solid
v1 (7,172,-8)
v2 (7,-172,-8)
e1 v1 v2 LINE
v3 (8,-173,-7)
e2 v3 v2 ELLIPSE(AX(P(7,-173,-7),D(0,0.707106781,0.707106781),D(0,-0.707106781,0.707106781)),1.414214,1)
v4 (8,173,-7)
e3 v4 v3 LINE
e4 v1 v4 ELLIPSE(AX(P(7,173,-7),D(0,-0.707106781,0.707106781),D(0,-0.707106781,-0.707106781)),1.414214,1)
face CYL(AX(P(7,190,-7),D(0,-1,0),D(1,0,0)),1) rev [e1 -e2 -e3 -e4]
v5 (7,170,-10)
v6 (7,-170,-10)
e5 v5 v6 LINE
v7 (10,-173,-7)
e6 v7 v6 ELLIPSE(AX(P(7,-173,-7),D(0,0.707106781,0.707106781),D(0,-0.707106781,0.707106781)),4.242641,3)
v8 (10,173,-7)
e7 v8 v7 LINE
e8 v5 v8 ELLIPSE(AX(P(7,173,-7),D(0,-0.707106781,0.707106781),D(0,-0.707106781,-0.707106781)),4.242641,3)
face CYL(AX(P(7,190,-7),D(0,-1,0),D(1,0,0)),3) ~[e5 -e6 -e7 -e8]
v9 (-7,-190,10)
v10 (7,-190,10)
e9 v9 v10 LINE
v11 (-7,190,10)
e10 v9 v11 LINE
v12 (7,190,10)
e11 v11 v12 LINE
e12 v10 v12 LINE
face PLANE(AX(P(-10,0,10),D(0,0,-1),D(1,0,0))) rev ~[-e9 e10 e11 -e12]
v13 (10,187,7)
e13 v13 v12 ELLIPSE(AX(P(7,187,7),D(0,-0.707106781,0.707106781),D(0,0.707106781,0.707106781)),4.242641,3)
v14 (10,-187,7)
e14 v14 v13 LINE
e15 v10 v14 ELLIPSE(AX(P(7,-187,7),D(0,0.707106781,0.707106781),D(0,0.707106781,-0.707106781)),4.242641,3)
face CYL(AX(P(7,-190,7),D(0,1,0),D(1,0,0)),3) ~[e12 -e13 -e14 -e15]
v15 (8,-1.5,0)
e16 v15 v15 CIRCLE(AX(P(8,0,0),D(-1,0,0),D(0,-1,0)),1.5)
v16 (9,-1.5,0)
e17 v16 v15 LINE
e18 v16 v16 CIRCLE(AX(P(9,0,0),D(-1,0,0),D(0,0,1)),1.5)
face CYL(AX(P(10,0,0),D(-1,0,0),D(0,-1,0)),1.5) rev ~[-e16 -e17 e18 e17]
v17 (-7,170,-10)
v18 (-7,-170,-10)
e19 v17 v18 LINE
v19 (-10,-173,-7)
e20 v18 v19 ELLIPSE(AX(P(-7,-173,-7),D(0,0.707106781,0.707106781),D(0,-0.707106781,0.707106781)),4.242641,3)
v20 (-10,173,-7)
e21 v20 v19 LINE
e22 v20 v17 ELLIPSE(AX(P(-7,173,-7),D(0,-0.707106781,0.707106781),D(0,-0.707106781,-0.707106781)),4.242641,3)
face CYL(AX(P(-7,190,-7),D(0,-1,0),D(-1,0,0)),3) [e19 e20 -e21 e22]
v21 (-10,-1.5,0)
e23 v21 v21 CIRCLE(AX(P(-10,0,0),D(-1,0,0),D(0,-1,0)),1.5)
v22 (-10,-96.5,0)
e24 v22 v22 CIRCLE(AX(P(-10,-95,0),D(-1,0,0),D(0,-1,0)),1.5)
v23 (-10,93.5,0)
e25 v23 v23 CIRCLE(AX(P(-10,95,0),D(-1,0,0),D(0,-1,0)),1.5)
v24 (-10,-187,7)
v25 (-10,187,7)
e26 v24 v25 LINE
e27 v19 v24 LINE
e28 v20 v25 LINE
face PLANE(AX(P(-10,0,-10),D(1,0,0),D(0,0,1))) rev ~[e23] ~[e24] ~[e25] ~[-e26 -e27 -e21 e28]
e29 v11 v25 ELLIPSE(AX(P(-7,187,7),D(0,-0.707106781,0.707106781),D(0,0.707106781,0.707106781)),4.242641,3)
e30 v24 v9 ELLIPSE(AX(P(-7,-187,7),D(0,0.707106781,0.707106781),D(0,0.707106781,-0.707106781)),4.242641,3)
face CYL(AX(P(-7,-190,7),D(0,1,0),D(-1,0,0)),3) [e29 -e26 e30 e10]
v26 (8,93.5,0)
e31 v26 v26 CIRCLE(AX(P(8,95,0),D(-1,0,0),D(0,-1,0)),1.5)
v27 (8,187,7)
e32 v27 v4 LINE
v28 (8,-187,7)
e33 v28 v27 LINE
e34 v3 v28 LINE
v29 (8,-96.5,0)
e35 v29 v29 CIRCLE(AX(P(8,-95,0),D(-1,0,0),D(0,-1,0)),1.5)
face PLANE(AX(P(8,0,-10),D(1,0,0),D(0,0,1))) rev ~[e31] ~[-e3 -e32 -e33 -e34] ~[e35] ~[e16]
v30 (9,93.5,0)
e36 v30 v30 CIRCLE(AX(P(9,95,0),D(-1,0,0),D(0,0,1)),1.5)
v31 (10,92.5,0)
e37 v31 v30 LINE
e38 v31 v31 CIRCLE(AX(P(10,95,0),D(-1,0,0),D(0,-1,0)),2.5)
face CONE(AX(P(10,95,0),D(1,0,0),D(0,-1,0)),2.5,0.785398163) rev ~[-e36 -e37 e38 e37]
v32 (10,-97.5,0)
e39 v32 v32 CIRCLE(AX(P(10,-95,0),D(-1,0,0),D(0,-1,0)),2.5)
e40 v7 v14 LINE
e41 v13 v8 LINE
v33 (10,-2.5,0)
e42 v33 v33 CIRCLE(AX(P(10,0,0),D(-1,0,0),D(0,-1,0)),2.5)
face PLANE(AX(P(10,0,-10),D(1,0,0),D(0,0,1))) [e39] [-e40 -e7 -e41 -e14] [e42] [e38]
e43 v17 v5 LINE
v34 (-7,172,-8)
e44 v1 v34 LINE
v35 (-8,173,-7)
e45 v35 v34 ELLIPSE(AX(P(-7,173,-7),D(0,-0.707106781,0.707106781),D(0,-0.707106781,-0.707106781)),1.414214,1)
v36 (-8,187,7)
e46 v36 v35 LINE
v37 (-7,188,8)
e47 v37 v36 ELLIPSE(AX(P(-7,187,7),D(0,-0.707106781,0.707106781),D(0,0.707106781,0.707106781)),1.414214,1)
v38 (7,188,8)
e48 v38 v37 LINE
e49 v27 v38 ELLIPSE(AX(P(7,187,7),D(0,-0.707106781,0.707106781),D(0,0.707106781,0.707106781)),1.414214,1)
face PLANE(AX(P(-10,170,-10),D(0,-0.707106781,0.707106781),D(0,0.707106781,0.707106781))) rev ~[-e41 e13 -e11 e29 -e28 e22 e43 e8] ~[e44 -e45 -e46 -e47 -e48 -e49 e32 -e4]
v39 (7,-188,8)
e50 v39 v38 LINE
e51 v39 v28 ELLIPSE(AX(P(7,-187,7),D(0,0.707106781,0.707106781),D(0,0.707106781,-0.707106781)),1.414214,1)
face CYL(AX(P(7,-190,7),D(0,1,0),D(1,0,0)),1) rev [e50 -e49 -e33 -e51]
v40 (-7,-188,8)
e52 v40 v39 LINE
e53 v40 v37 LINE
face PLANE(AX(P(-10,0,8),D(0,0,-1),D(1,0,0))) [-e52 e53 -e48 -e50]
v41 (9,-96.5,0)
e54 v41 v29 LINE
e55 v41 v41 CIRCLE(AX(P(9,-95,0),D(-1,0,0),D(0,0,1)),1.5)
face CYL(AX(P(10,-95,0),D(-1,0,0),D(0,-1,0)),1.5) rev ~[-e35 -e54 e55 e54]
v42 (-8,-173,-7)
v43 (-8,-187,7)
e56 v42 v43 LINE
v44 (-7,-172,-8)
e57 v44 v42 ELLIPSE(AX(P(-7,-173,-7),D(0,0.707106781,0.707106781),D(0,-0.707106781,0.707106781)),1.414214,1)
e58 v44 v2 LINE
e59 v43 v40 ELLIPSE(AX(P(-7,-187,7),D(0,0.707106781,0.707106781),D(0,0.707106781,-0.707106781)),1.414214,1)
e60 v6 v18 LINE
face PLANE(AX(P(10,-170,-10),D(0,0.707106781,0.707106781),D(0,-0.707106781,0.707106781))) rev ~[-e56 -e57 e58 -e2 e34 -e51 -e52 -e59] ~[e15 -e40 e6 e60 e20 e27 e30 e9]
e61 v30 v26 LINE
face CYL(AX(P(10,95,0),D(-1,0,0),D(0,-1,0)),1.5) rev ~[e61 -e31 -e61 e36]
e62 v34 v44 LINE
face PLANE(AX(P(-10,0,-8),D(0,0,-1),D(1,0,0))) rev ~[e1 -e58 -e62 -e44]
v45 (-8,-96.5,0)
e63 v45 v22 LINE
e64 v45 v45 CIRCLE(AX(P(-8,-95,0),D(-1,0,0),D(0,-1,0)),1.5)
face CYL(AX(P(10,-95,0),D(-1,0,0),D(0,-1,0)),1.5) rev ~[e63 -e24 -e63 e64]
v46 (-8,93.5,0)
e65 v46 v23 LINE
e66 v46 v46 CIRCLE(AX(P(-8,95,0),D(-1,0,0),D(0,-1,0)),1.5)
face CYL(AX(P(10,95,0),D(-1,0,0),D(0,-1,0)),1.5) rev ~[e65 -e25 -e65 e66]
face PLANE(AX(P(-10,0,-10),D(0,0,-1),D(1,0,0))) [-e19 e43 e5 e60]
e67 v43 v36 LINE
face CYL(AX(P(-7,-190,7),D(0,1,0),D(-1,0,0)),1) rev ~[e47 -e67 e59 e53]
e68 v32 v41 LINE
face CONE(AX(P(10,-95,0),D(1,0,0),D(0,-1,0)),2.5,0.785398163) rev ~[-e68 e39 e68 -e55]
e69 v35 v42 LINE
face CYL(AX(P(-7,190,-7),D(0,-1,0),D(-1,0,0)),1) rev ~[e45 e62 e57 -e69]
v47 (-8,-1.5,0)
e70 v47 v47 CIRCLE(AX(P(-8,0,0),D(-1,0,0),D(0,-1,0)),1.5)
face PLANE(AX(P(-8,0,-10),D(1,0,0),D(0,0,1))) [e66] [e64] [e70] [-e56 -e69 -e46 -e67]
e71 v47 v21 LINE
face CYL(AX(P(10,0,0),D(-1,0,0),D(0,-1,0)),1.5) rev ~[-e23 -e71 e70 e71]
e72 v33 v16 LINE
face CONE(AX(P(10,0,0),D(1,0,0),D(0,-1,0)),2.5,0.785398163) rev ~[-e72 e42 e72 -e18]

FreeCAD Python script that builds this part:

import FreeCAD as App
import Part
import Sketcher
Q = App.Units.Quantity


def edges_at(feature, points):
    """Names of the edges that pass closest to the given points."""
    edges = feature.Shape.Edges
    near = lambda p: min(range(len(edges)), key=lambda i: edges[i].distToShape(Part.Vertex(*p))[0])
    return sorted({f"Edge{near(p) + 1}" for p in points})


def faces_at(feature, points):
    """Names of the faces that lie closest to the given points."""
    faces = feature.Shape.Faces
    near = lambda p: min(range(len(faces)), key=lambda i: faces[i].distToShape(Part.Vertex(*p))[0])
    return sorted({f"Face{near(p) + 1}" for p in points})

doc = App.newDocument("Part")
body = doc.addObject("PartDesign::Body", "Body")

sketch1 = body.newObject("Sketcher::SketchObject", "Sketch")
sketch1.AttachmentSupport = (doc.getObject("XZ_Plane"), [""])
sketch1.MapMode = "FlatFace"
sketch1.addGeometry(Part.LineSegment(App.Vector(-10, 10, 0), App.Vector(-10, -10, 0)), False)
sketch1.addGeometry(Part.LineSegment(App.Vector(-10, -10, 0), App.Vector(10, -10, 0)), False)
sketch1.addGeometry(Part.LineSegment(App.Vector(10, -10, 0), App.Vector(10, 10, 0)), False)
sketch1.addGeometry(Part.LineSegment(App.Vector(10, 10, 0), App.Vector(-10, 10, 0)), False)
sketch1.addConstraint(Sketcher.Constraint("Coincident", 0, 2, 1, 1))
sketch1.addConstraint(Sketcher.Constraint("Coincident", 1, 2, 2, 1))
sketch1.addConstraint(Sketcher.Constraint("Coincident", 2, 2, 3, 1))
sketch1.addConstraint(Sketcher.Constraint("Coincident", 3, 2, 0, 1))
sketch1.addConstraint(Sketcher.Constraint("Vertical", 0))
sketch1.addConstraint(Sketcher.Constraint("Horizontal", 1))
sketch1.addConstraint(Sketcher.Constraint("Vertical", 2))
sketch1.addConstraint(Sketcher.Constraint("Horizontal", 3))
sketch1.addConstraint(Sketcher.Constraint("Symmetric", 0, 2, 2, 2, -1, 1))
sketch1.addConstraint(Sketcher.Constraint("Equal", 3, 0))
sketch1.addConstraint(Sketcher.Constraint("DistanceX", 1, 1, 1, 2, Q("20 mm")))
pad1 = body.newObject("PartDesign::Pad", "Pad")
pad1.Profile = sketch1
pad1.Length = 380
pad1.Midplane = True
doc.recompute()

fillet = body.newObject("PartDesign::Fillet", "Fillet")
fillet.Base = (pad1, edges_at(pad1, [
    (10, 0, 10),
    (-10, 0, 10),
    (10, 0, -10),
    (-10, 0, -10),
]))
fillet.Radius = 3
doc.recompute()

thickness = body.newObject("PartDesign::Thickness", "Thickness")
thickness.Base = (fillet, faces_at(fillet, [(0, -190, 0), (0, 190, 0)]))
thickness.Value = 2
thickness.Reversed = True
thickness.Join = "Arc"

sketch2 = body.newObject("Sketcher::SketchObject", "Sketch001")
sketch2.AttachmentSupport = (doc.getObject("YZ_Plane"), [""])
sketch2.MapMode = "FlatFace"
sketch2.AttachmentOffset = App.Placement(App.Vector(0, 0, -10), App.Rotation())
sketch2.addGeometry(Part.LineSegment(App.Vector(190, 10, 0), App.Vector(190, -10, 0)), False)
sketch2.addGeometry(Part.LineSegment(App.Vector(190, -10, 0), App.Vector(170, -10, 0)), False)
sketch2.addGeometry(Part.LineSegment(App.Vector(170, -10, 0), App.Vector(190, 10, 0)), False)
sketch2.addConstraint(Sketcher.Constraint("Coincident", 0, 2, 1, 1))
sketch2.addConstraint(Sketcher.Constraint("Coincident", 1, 2, 2, 1))
sketch2.addConstraint(Sketcher.Constraint("Coincident", 2, 2, 0, 1))
sketch2.addConstraint(Sketcher.Constraint("Vertical", 0))
sketch2.addConstraint(Sketcher.Constraint("Horizontal", 1))
sketch2.addConstraint(Sketcher.Constraint("Equal", 1, 0))
sketch2.addConstraint(Sketcher.Constraint("DistanceX", 1, 2, 1, 1, Q("20 mm")))
sketch2.addConstraint(Sketcher.Constraint("DistanceX", -1, 1, 0, 2, Q("190 mm")))
sketch2.addConstraint(Sketcher.Constraint("DistanceY", 0, 2, -1, 1, Q("10 mm")))
pocket1 = body.newObject("PartDesign::Pocket", "Pocket")
pocket1.Profile = sketch2
pocket1.Type = "ThroughAll"
pocket1.Reversed = True

sketch3 = body.newObject("Sketcher::SketchObject", "Sketch002")
sketch3.AttachmentSupport = (doc.getObject("YZ_Plane"), [""])
sketch3.MapMode = "FlatFace"
sketch3.AttachmentOffset = App.Placement(App.Vector(0, 0, 10), App.Rotation())
sketch3.addGeometry(Part.LineSegment(App.Vector(-190, -10, 0), App.Vector(-170, -10, 0)), False)
sketch3.addGeometry(Part.LineSegment(App.Vector(-170, -10, 0), App.Vector(-190, 10, 0)), False)
sketch3.addGeometry(Part.LineSegment(App.Vector(-190, 10, 0), App.Vector(-190, -10, 0)), False)
sketch3.addConstraint(Sketcher.Constraint("Coincident", 0, 2, 1, 1))
sketch3.addConstraint(Sketcher.Constraint("Coincident", 1, 2, 2, 1))
sketch3.addConstraint(Sketcher.Constraint("Coincident", 2, 2, 0, 1))
sketch3.addConstraint(Sketcher.Constraint("Horizontal", 0))
sketch3.addConstraint(Sketcher.Constraint("Vertical", 2))
sketch3.addConstraint(Sketcher.Constraint("Equal", 0, 2))
sketch3.addConstraint(Sketcher.Constraint("DistanceX", 0, 1, 0, 2, Q("20 mm")))
sketch3.addConstraint(Sketcher.Constraint("DistanceX", 0, 2, -1, 1, Q("170 mm")))
sketch3.addConstraint(Sketcher.Constraint("DistanceY", 0, 2, -1, 1, Q("10 mm")))
pocket2 = body.newObject("PartDesign::Pocket", "Pocket001")
pocket2.Profile = sketch3
pocket2.Type = "ThroughAll"

sketch4 = body.newObject("Sketcher::SketchObject", "Sketch003")
sketch4.AttachmentSupport = (doc.getObject("YZ_Plane"), [""])
sketch4.MapMode = "FlatFace"
sketch4.AttachmentOffset = App.Placement(App.Vector(0, 0, 10), App.Rotation())
sketch4.addGeometry(Part.Circle(App.Vector(95, 0, 0), App.Vector(0, 0, 1), 1.5), False)
sketch4.addGeometry(Part.Circle(App.Vector(0, 0, 0), App.Vector(0, 0, 1), 1.5), False)
sketch4.addGeometry(Part.Circle(App.Vector(-95, 0, 0), App.Vector(0, 0, 1), 1.5), False)
sketch4.addConstraint(Sketcher.Constraint("Coincident", 1, 3, -1, 1))
sketch4.addConstraint(Sketcher.Constraint("Equal", 0, 1))
sketch4.addConstraint(Sketcher.Constraint("Equal", 1, 2))
sketch4.addConstraint(Sketcher.Constraint("Symmetric", 0, 3, 2, 3, -1, 1))
sketch4.addConstraint(Sketcher.Constraint("PointOnObject", 0, 3, -1))
sketch4.addConstraint(Sketcher.Constraint("Diameter", 0, Q("3 mm")))
sketch4.addConstraint(Sketcher.Constraint("DistanceX", -1, 1, 0, 3, Q("95 mm")))
doc.recompute()
hole = body.newObject("PartDesign::Hole", "Hole")
hole.Profile = sketch4
hole.ThreadType = "None"
hole.Diameter = 3
hole.DepthType = "ThroughAll"
hole.HoleCutType = "Countersink"
hole.HoleCutDiameter = 5
hole.HoleCutCountersinkAngle = 90

doc.recompute()
